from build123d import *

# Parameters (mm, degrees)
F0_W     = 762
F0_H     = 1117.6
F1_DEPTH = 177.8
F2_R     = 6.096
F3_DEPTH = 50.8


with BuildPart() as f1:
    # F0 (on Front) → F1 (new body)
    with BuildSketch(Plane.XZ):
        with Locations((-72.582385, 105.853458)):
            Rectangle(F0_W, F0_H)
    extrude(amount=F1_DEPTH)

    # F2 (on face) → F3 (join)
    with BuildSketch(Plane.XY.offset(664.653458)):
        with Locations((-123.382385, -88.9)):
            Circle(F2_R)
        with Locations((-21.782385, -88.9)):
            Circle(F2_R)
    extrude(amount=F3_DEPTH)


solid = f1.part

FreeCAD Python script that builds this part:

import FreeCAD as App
import Part
import Sketcher

V = App.Vector
Q = App.Units.Quantity

doc = App.newDocument("Part")
body = doc.addObject("PartDesign::Body", "Body")

# Sketch on XZ plane
sketch1 = body.newObject("Sketcher::SketchObject", "Sketch")
sketch1.AttachmentSupport = (doc.getObject("XZ_Plane"), [""])
sketch1.MapMode = "FlatFace"
sketch1.addGeometry(Part.LineSegment(V(-453.582385, 664.653458, 0), V(-453.582385, -452.946542, 0)), False)
sketch1.addGeometry(Part.LineSegment(V(-453.582385, -452.946542, 0), V(308.417615, -452.946542, 0)), False)
sketch1.addGeometry(Part.LineSegment(V(308.417615, -452.946542, 0), V(308.417615, 664.653458, 0)), False)
sketch1.addGeometry(Part.LineSegment(V(308.417615, 664.653458, 0), V(-453.582385, 664.653458, 0)), False)
sketch1.addConstraint(Sketcher.Constraint("Coincident", 0, 2, 1, 1))
sketch1.addConstraint(Sketcher.Constraint("Coincident", 1, 2, 2, 1))
sketch1.addConstraint(Sketcher.Constraint("Coincident", 2, 2, 3, 1))
sketch1.addConstraint(Sketcher.Constraint("Coincident", 3, 2, 0, 1))
sketch1.addConstraint(Sketcher.Constraint("Vertical", 0))
sketch1.addConstraint(Sketcher.Constraint("Horizontal", 1))
sketch1.addConstraint(Sketcher.Constraint("Vertical", 2))
sketch1.addConstraint(Sketcher.Constraint("Horizontal", 3))
sketch1.addConstraint(Sketcher.Constraint("DistanceX", 1, 1, 1, 2, Q("30 in")))
sketch1.addConstraint(Sketcher.Constraint("DistanceY", 0, 2, 0, 1, Q("44 in")))
sketch1.addConstraint(Sketcher.Constraint("DistanceY", 0, 2, -1, 1, 452.946542))
sketch1.addConstraint(Sketcher.Constraint("DistanceX", 0, 2, -1, 1, 453.582385))
pad1 = body.newObject("PartDesign::Pad", "Pad")
pad1.Profile = sketch1
pad1.Length = Q("7 in")

# Sketch on XY plane
sketch2 = body.newObject("Sketcher::SketchObject", "Sketch001")
sketch2.AttachmentSupport = (doc.getObject("XY_Plane"), [""])
sketch2.MapMode = "FlatFace"
sketch2.AttachmentOffset = App.Placement(V(0, 0, 664.653458), App.Rotation())
sketch2.addGeometry(Part.Circle(V(-123.382385, -88.9, 0), V(0, 0, 1), 6.096), False)
sketch2.addGeometry(Part.Circle(V(-21.782385, -88.9, 0), V(0, 0, 1), 6.096), False)
sketch2.addConstraint(Sketcher.Constraint("Equal", 0, 1))
sketch2.addConstraint(Sketcher.Constraint("Horizontal", 0, 3, 1, 3))
sketch2.addConstraint(Sketcher.Constraint("Diameter", 0, Q("0.48 in")))
sketch2.addConstraint(Sketcher.Constraint("DistanceX", 0, 3, 1, 3, Q("4 in")))
sketch2.addConstraint(Sketcher.Constraint("DistanceY", 0, 3, -1, 1, Q("3.5 in")))
sketch2.addConstraint(Sketcher.Constraint("DistanceX", 0, 3, -1, 1, 123.382385))
pad2 = body.newObject("PartDesign::Pad", "Pad001")
pad2.Profile = sketch2
pad2.Length = Q("2 in")

doc.recompute()
